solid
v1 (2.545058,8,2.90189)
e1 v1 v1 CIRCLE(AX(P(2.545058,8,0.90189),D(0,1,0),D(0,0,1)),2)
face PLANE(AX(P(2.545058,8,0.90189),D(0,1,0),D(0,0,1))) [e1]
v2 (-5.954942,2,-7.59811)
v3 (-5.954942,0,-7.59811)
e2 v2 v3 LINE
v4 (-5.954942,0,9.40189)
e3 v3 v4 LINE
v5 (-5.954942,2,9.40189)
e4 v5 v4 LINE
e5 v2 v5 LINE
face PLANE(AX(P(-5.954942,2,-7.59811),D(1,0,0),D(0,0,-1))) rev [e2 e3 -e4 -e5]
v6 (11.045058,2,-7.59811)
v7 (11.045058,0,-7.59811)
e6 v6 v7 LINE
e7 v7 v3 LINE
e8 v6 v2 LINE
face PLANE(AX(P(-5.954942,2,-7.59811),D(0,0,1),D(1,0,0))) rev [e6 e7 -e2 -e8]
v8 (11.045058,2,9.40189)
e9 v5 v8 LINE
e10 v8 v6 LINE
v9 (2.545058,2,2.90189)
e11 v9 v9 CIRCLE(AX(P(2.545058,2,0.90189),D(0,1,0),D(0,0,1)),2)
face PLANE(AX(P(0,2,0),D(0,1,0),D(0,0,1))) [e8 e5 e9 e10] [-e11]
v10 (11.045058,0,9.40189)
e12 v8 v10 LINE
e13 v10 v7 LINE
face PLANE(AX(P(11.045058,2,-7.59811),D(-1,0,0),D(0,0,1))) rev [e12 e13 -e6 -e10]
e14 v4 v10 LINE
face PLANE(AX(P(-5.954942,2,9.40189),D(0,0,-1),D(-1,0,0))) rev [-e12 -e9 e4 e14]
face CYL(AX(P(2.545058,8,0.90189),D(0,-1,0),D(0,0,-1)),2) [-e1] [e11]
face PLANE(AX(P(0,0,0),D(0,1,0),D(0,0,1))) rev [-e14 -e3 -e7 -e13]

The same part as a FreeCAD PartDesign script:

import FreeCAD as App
import Part
import Sketcher

doc = App.newDocument("Part")
body = doc.addObject("PartDesign::Body", "Body")

sketch1 = body.newObject("Sketcher::SketchObject", "Sketch")
sketch1.AttachmentSupport = (doc.getObject("XZ_Plane"), [""])
sketch1.MapMode = "FlatFace"
sketch1.addGeometry(Part.LineSegment(App.Vector(-5.954942, -7.59811, 0), App.Vector(-5.954942, 9.40189, 0)), False)
sketch1.addGeometry(Part.LineSegment(App.Vector(-5.954942, 9.40189, 0), App.Vector(11.045058, 9.40189, 0)), False)
sketch1.addGeometry(Part.LineSegment(App.Vector(11.045058, 9.40189, 0), App.Vector(11.045058, -7.59811, 0)), False)
sketch1.addGeometry(Part.LineSegment(App.Vector(11.045058, -7.59811, 0), App.Vector(-5.954942, -7.59811, 0)), False)
sketch1.addConstraint(Sketcher.Constraint("Coincident", 0, 2, 1, 1))
sketch1.addConstraint(Sketcher.Constraint("Coincident", 1, 2, 2, 1))
sketch1.addConstraint(Sketcher.Constraint("Coincident", 2, 2, 3, 1))
sketch1.addConstraint(Sketcher.Constraint("Coincident", 3, 2, 0, 1))
sketch1.addConstraint(Sketcher.Constraint("Vertical", 0))
sketch1.addConstraint(Sketcher.Constraint("Horizontal", 1))
sketch1.addConstraint(Sketcher.Constraint("Vertical", 2))
sketch1.addConstraint(Sketcher.Constraint("Horizontal", 3))
sketch1.addConstraint(Sketcher.Constraint("Equal", 3, 0))
sketch1.addConstraint(Sketcher.Constraint("DistanceX", 1, 1, 1, 2, 17.0))
sketch1.addConstraint(Sketcher.Constraint("DistanceX", 0, 2, -1, 1, 5.954942))
sketch1.addConstraint(Sketcher.Constraint("DistanceY", -1, 1, 0, 2, 9.40189))
pad1 = body.newObject("PartDesign::Pad", "Pad")
pad1.Profile = sketch1
pad1.Length = 2
pad1.Reversed = True

sketch2 = body.newObject("Sketcher::SketchObject", "Sketch001")
sketch2.AttachmentSupport = (doc.getObject("XZ_Plane"), [""])
sketch2.MapMode = "FlatFace"
sketch2.AttachmentOffset = App.Placement(App.Vector(0, 0, -2), App.Rotation())
sketch2.addGeometry(Part.Circle(App.Vector(2.545058, 0.90189, 0), App.Vector(0, 0, 1), 2), False)
sketch2.addConstraint(Sketcher.Constraint("Diameter", 0, 4.0))
sketch2.addConstraint(Sketcher.Constraint("DistanceX", -1, 1, 0, 3, 2.545058))
sketch2.addConstraint(Sketcher.Constraint("DistanceY", -1, 1, 0, 3, 0.90189))
pad2 = body.newObject("PartDesign::Pad", "Pad001")
pad2.Profile = sketch2
pad2.Length = 6
pad2.Reversed = True

doc.recompute()
